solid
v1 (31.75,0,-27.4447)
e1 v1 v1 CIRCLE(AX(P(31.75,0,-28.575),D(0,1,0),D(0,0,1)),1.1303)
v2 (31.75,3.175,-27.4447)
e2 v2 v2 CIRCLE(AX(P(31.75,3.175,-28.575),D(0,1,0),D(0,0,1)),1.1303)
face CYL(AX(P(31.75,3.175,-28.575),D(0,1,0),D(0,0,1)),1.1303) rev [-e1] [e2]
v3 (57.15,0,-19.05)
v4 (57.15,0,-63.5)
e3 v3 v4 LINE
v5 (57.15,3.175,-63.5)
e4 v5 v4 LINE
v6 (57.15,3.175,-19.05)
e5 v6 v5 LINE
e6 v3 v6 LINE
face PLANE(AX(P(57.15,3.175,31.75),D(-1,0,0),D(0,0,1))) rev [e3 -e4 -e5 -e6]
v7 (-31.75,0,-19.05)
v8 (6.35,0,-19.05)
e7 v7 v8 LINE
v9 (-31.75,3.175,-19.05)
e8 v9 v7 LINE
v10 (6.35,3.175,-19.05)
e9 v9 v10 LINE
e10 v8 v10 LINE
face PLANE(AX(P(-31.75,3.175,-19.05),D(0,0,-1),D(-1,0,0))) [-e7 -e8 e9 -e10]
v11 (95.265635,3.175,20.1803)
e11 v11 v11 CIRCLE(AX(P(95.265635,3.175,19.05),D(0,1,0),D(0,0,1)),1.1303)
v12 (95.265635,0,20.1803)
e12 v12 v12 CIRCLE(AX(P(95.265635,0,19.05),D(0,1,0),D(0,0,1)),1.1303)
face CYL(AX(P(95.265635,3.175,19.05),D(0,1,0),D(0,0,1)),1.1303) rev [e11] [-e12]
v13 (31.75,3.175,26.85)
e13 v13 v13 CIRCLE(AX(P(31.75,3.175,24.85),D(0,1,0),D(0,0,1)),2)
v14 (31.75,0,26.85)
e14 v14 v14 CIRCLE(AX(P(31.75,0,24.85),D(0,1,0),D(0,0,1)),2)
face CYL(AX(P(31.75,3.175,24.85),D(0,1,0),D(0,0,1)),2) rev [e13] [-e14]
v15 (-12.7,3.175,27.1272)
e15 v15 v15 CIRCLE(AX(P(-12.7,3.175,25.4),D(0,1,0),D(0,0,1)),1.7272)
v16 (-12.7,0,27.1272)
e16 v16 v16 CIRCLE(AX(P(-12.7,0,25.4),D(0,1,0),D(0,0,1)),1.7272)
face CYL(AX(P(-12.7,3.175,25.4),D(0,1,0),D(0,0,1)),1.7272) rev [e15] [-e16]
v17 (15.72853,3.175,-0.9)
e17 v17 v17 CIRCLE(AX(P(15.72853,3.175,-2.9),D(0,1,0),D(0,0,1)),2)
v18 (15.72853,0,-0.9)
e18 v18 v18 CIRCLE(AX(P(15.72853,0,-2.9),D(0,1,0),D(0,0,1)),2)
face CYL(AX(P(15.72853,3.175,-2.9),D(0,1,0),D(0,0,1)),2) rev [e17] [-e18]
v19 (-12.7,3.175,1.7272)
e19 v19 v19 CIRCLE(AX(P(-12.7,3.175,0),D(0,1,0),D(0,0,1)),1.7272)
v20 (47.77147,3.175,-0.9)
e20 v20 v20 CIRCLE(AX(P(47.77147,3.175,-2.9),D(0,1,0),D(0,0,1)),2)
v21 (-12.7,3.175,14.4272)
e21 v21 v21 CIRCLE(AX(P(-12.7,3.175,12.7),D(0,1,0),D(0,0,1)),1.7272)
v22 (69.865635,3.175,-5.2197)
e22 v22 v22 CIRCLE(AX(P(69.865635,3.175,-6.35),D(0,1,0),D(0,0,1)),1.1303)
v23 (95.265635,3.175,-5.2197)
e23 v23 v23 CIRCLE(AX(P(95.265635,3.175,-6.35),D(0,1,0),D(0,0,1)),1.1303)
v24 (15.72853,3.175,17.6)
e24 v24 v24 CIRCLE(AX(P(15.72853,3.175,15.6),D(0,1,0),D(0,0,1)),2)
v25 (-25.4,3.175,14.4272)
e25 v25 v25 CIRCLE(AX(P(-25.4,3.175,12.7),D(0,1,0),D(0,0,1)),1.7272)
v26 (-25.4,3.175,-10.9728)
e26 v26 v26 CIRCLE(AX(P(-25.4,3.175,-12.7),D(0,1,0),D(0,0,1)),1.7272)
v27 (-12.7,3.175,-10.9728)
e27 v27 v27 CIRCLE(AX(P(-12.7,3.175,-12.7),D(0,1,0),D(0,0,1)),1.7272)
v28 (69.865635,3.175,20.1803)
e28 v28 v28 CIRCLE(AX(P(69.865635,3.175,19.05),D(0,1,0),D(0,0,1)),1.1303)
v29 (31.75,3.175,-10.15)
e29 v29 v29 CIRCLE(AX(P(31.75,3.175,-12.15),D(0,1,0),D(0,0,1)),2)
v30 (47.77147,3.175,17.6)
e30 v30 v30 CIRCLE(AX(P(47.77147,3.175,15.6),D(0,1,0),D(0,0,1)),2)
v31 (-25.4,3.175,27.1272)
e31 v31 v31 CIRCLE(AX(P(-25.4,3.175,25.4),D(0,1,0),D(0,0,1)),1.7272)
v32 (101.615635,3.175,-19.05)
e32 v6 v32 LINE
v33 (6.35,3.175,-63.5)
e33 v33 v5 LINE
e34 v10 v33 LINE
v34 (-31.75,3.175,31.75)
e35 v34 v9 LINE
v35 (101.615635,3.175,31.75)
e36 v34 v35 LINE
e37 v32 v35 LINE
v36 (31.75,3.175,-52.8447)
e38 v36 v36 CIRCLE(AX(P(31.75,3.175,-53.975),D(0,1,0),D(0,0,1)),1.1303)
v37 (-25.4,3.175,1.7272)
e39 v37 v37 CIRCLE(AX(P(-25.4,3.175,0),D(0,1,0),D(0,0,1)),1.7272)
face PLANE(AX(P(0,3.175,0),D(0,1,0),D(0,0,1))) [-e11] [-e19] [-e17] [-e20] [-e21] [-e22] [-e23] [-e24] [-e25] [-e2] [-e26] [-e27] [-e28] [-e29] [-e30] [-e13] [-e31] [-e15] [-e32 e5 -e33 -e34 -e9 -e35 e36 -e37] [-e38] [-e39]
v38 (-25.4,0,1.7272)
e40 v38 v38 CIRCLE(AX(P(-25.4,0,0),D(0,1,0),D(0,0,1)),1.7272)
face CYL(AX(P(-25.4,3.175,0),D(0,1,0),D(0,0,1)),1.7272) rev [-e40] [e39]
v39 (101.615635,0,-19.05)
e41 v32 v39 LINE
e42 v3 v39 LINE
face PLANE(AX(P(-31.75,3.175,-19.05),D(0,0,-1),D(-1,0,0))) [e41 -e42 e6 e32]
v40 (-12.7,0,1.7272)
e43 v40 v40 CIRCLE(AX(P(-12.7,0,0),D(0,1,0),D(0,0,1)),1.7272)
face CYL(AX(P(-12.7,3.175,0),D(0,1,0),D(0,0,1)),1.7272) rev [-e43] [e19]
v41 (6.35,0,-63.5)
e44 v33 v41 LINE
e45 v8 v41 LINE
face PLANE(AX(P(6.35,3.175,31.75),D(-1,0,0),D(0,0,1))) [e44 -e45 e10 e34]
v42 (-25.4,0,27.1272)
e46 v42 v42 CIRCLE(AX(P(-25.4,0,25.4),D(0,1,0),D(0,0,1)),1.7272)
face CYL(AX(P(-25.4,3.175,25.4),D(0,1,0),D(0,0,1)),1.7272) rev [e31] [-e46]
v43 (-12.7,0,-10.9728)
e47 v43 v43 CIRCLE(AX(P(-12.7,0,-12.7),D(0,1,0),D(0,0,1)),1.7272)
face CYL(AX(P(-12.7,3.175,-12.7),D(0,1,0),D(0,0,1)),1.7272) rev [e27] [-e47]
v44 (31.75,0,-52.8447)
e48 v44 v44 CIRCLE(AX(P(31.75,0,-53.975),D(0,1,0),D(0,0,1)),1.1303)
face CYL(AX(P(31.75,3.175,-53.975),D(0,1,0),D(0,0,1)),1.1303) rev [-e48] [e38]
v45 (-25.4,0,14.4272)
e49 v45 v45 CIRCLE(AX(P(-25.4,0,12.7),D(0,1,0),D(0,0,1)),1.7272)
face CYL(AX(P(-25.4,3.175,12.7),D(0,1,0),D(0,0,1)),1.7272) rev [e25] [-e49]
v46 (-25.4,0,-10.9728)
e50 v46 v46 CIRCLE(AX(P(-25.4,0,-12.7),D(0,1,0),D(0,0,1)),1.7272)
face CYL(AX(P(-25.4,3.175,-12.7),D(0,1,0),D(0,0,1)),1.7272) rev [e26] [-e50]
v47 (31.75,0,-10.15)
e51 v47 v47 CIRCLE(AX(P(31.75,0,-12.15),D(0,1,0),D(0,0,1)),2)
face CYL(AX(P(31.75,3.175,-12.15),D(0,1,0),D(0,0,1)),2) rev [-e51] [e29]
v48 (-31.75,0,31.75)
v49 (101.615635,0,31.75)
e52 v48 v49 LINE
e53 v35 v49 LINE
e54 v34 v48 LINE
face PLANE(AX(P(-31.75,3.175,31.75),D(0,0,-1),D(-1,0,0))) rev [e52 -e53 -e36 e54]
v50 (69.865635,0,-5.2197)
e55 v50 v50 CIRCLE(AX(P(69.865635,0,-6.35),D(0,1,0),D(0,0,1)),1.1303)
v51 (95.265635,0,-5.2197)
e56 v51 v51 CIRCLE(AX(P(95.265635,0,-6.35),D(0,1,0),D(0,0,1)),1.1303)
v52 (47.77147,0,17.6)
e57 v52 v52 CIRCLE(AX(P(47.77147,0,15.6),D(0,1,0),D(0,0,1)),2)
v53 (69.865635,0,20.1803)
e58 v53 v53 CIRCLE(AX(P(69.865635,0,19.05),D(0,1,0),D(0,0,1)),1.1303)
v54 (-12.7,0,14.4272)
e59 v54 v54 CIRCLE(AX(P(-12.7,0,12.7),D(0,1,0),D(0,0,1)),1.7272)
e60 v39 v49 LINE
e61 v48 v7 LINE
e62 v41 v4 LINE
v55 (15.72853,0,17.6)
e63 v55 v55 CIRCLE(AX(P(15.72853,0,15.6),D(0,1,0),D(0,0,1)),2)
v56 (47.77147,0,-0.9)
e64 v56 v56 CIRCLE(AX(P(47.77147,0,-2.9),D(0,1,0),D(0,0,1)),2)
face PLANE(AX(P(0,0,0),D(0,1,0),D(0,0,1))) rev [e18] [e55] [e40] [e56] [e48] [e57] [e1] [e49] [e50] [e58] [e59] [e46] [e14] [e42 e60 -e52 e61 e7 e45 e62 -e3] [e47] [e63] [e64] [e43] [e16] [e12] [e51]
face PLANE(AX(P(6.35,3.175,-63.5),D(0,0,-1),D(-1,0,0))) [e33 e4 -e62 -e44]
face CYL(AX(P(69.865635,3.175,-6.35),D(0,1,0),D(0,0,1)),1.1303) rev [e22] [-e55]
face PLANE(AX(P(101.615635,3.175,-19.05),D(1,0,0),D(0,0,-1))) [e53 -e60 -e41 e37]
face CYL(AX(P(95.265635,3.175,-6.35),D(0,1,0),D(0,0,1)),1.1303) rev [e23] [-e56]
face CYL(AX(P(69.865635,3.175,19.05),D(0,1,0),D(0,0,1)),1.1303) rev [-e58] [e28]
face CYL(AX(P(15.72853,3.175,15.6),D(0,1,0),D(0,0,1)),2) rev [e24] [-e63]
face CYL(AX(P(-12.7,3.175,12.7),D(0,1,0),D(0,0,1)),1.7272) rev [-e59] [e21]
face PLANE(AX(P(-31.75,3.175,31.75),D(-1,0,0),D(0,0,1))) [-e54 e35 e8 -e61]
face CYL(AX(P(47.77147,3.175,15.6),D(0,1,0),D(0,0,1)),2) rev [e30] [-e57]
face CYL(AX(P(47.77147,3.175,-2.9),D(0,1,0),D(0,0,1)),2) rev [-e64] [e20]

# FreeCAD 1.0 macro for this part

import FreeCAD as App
import Part
import Sketcher
Q = App.Units.Quantity

doc = App.newDocument("Part")
body = doc.addObject("PartDesign::Body", "Body")

# Sketch on XZ plane
sketch1 = doc.addObject("Sketcher::SketchObject", "Sketch")
body.addObject(sketch1)
sketch1.AttachmentSupport = (doc.XZ_Plane, [""])
sketch1.MapMode = "FlatFace"
sketch1.addGeometry([
    Part.LineSegment(App.Vector(-31.75, -19.05, 0), App.Vector(-31.75, 31.75, 0)),  # 0
    Part.LineSegment(App.Vector(-31.75, 31.75, 0), App.Vector(101.615635, 31.75, 0)),  # 1
    Part.LineSegment(App.Vector(101.615635, 31.75, 0), App.Vector(101.615635, -19.05, 0)),  # 2
    Part.LineSegment(App.Vector(101.615635, -19.05, 0), App.Vector(57.15, -19.05, 0)),  # 3
    Part.LineSegment(App.Vector(57.15, -19.05, 0), App.Vector(57.15, -63.5, 0)),  # 4
    Part.LineSegment(App.Vector(57.15, -63.5, 0), App.Vector(6.35, -63.5, 0)),  # 5
    Part.LineSegment(App.Vector(6.35, -63.5, 0), App.Vector(6.35, -19.05, 0)),  # 6
    Part.LineSegment(App.Vector(6.35, -19.05, 0), App.Vector(-31.75, -19.05, 0)),  # 7
], False)
sketch1.addConstraint([
    Sketcher.Constraint("Coincident", 0, 2, 1, 1),
    Sketcher.Constraint("Coincident", 1, 2, 2, 1),
    Sketcher.Constraint("Coincident", 2, 2, 3, 1),
    Sketcher.Constraint("Coincident", 3, 2, 4, 1),
    Sketcher.Constraint("Coincident", 4, 2, 5, 1),
    Sketcher.Constraint("Coincident", 5, 2, 6, 1),
    Sketcher.Constraint("Coincident", 6, 2, 7, 1),
    Sketcher.Constraint("Coincident", 7, 2, 0, 1),
    Sketcher.Constraint("Vertical", 0),
    Sketcher.Constraint("Horizontal", 1),
    Sketcher.Constraint("Vertical", 2),
    Sketcher.Constraint("Horizontal", 3),
    Sketcher.Constraint("Vertical", 4),
    Sketcher.Constraint("Horizontal", 5),
    Sketcher.Constraint("Vertical", 6),
    Sketcher.Constraint("Horizontal", 7),
    Sketcher.Constraint("Horizontal", 3, 2, 6, 2),
    Sketcher.Constraint("Equal", 5, 0),
    Sketcher.Constraint("DistanceX", 5, 2, 5, 1, Q("2 in")),
    Sketcher.Constraint("DistanceX", 7, 2, 7, 1, Q("1.5 in")),
    Sketcher.Constraint("DistanceY", 4, 2, 4, 1, Q("1.75 in")),
    Sketcher.Constraint("DistanceY", 4, 2, -1, 1, Q("2.5 in")),
    Sketcher.Constraint("DistanceX", 0, 2, -1, 1, Q("1.25 in")),
    Sketcher.Constraint("DistanceX", 1, 1, 1, 2, 133.365635),
])
pad1 = doc.addObject("PartDesign::Pad", "Pad")
body.addObject(pad1)
pad1.Profile = sketch1
pad1.Length = Q("0.125 in")
pad1.Reversed = True

# Sketch on XZ plane
sketch2 = doc.addObject("Sketcher::SketchObject", "Sketch001")
body.addObject(sketch2)
sketch2.AttachmentSupport = (doc.XZ_Plane, [""])
sketch2.MapMode = "FlatFace"
sketch2.AttachmentOffset = App.Placement(App.Vector(0, 0, -0.125 * 25.4), App.Rotation())
sketch2.addGeometry([
    Part.Circle(App.Vector(-12.7, 0, 0), App.Vector(0, 0, 1), 1.7272),  # 0
    Part.Circle(App.Vector(-25.4, 0, 0), App.Vector(0, 0, 1), 1.7272),  # 1
    Part.Circle(App.Vector(-25.4, 12.7, 0), App.Vector(0, 0, 1), 1.7272),  # 2
    Part.Circle(App.Vector(-25.4, 25.4, 0), App.Vector(0, 0, 1), 1.7272),  # 3
    Part.Circle(App.Vector(-12.7, 25.4, 0), App.Vector(0, 0, 1), 1.7272),  # 4
    Part.Circle(App.Vector(-12.7, -12.7, 0), App.Vector(0, 0, 1), 1.7272),  # 5
    Part.Circle(App.Vector(-25.4, -12.7, 0), App.Vector(0, 0, 1), 1.7272),  # 6
    Part.Circle(App.Vector(-12.7, 12.7, 0), App.Vector(0, 0, 1), 1.7272),  # 7
], False)
sketch2.addConstraint([
    Sketcher.Constraint("Equal", 0, 1),
    Sketcher.Constraint("Equal", 1, 2),
    Sketcher.Constraint("Equal", 2, 3),
    Sketcher.Constraint("Equal", 3, 4),
    Sketcher.Constraint("Equal", 4, 5),
    Sketcher.Constraint("Equal", 5, 6),
    Sketcher.Constraint("Equal", 6, 7),
    Sketcher.Constraint("Symmetric", 2, 3, 6, 3, -1),
    Sketcher.Constraint("Symmetric", 5, 3, 7, 3, -1),
    Sketcher.Constraint("PointOnObject", 0, 3, -1),
    Sketcher.Constraint("PointOnObject", 1, 3, -1),
    Sketcher.Constraint("Horizontal", 3, 3, 4, 3),
    Sketcher.Constraint("Horizontal", 5, 3, 6, 3),
    Sketcher.Constraint("Vertical", 1, 3, 2, 3),
    Sketcher.Constraint("Vertical", 2, 3, 3, 3),
    Sketcher.Constraint("Vertical", 0, 3, 4, 3),
    Sketcher.Constraint("Vertical", 4, 3, 5, 3),
    Sketcher.Constraint("Diameter", 0, Q("0.136 in")),
    Sketcher.Constraint("DistanceX", 1, 3, -1, 1, Q("1 in")),
    Sketcher.Constraint("DistanceY", -1, 1, 3, 3, Q("1 in")),
    Sketcher.Constraint("DistanceY", 5, 3, 2, 3, Q("1 in")),
    Sketcher.Constraint("DistanceX", 0, 3, -1, 1, Q("0.5 in")),
])
doc.recompute()
hole = doc.addObject("PartDesign::Hole", "Hole")
body.addObject(hole)
hole.Profile = sketch2
hole.ThreadType = "None"
hole.Diameter = Q("0.136 in")
hole.DepthType = "ThroughAll"
hole.Reversed = True

# Sketch on XZ plane
sketch3 = doc.addObject("Sketcher::SketchObject", "Sketch002")
body.addObject(sketch3)
sketch3.AttachmentSupport = (doc.XZ_Plane, [""])
sketch3.MapMode = "FlatFace"
sketch3.AttachmentOffset = App.Placement(App.Vector(0, 0, -0.125 * 25.4), App.Rotation())
sketch3.addGeometry([
    Part.Circle(App.Vector(31.75, -12.15, 0), App.Vector(0, 0, 1), 2),  # 0
    Part.Circle(App.Vector(47.77147, -2.9, 0), App.Vector(0, 0, 1), 2),  # 1
    Part.Circle(App.Vector(47.77147, 15.6, 0), App.Vector(0, 0, 1), 2),  # 2
    Part.Circle(App.Vector(31.75, 24.85, 0), App.Vector(0, 0, 1), 2),  # 3
    Part.Circle(App.Vector(15.72853, 15.6, 0), App.Vector(0, 0, 1), 2),  # 4
    Part.Circle(App.Vector(15.72853, -2.9, 0), App.Vector(0, 0, 1), 2),  # 5
], False)
sketch3.addConstraint([
    Sketcher.Constraint("Equal", 0, 1),
    Sketcher.Constraint("Equal", 1, 2),
    Sketcher.Constraint("Equal", 2, 3),
    Sketcher.Constraint("Equal", 3, 4),
    Sketcher.Constraint("Equal", 4, 5),
    Sketcher.Constraint("Horizontal", 2, 3, 4, 3),
    Sketcher.Constraint("Horizontal", 1, 3, 5, 3),
    Sketcher.Constraint("Vertical", 1, 3, 2, 3),
    Sketcher.Constraint("Vertical", 0, 3, 3, 3),
    Sketcher.Constraint("Vertical", 4, 3, 5, 3),
    Sketcher.Constraint("Diameter", 0, 4.0),
    Sketcher.Constraint("DistanceX", -1, 1, 0, 3, Q("1.25 in")),
    Sketcher.Constraint("DistanceY", 0, 3, -1, 1, 12.15),
    Sketcher.Constraint("DistanceY", 1, 3, -1, 1, 2.9),
    Sketcher.Constraint("DistanceY", -1, 1, 2, 3, 15.6),
    Sketcher.Constraint("DistanceY", -1, 1, 3, 3, 24.85),
    Sketcher.Constraint("DistanceX", -1, 1, 1, 3, 47.77147),
    Sketcher.Constraint("DistanceX", -1, 1, 4, 3, 15.72853),
])
doc.recompute()
hole2 = doc.addObject("PartDesign::Hole", "Hole001")
body.addObject(hole2)
hole2.Profile = sketch3
hole2.ThreadType = "None"
hole2.Diameter = 4
hole2.DepthType = "ThroughAll"
hole2.Reversed = True

# Sketch on XZ plane
sketch4 = doc.addObject("Sketcher::SketchObject", "Sketch003")
body.addObject(sketch4)
sketch4.AttachmentSupport = (doc.XZ_Plane, [""])
sketch4.MapMode = "FlatFace"
sketch4.AttachmentOffset = App.Placement(App.Vector(0, 0, -0.125 * 25.4), App.Rotation())
sketch4.addGeometry([
    Part.Circle(App.Vector(69.865635, -6.35, 0), App.Vector(0, 0, 1), 1.1303),
    Part.Circle(App.Vector(95.265635, -6.35, 0), App.Vector(0, 0, 1), 1.1303),
    Part.Circle(App.Vector(95.265635, 19.05, 0), App.Vector(0, 0, 1), 1.1303),
    Part.Circle(App.Vector(69.865635, 19.05, 0), App.Vector(0, 0, 1), 1.1303),
], False)
sketch4.addConstraint([
    Sketcher.Constraint("Equal", 0, 1),
    Sketcher.Constraint("Equal", 1, 2),
    Sketcher.Constraint("Equal", 2, 3),
    Sketcher.Constraint("Horizontal", 0, 3, 1, 3),
    Sketcher.Constraint("Horizontal", 2, 3, 3, 3),
    Sketcher.Constraint("Vertical", 1, 3, 2, 3),
    Sketcher.Constraint("Vertical", 0, 3, 3, 3),
    Sketcher.Constraint("Diameter", 0, Q("0.089 in")),
    Sketcher.Constraint("DistanceX", 0, 3, 1, 3, Q("1 in")),
    Sketcher.Constraint("DistanceY", 1, 3, 2, 3, Q("1 in")),
    Sketcher.Constraint("DistanceY", 0, 3, -1, 1, Q("0.25 in")),
    Sketcher.Constraint("DistanceX", -1, 1, 0, 3, 69.865635),
])
doc.recompute()
hole3 = doc.addObject("PartDesign::Hole", "Hole002")
body.addObject(hole3)
hole3.Profile = sketch4
hole3.ThreadType = "None"
hole3.Diameter = Q("0.089 in")
hole3.DepthType = "ThroughAll"
hole3.Reversed = True

# Sketch on XZ plane
sketch5 = doc.addObject("Sketcher::SketchObject", "Sketch004")
body.addObject(sketch5)
sketch5.AttachmentSupport = (doc.XZ_Plane, [""])
sketch5.MapMode = "FlatFace"
sketch5.AttachmentOffset = App.Placement(App.Vector(0, 0, -0.125 * 25.4), App.Rotation())
sketch5.addGeometry([
    Part.Circle(App.Vector(31.75, -53.975, 0), App.Vector(0, 0, 1), 1.1303),
    Part.Circle(App.Vector(31.75, -28.575, 0), App.Vector(0, 0, 1), 1.1303),
], False)
sketch5.addConstraint([
    Sketcher.Constraint("Equal", 0, 1),
    Sketcher.Constraint("Vertical", 0, 3, 1, 3),
    Sketcher.Constraint("Diameter", 0, Q("0.089 in")),
    Sketcher.Constraint("DistanceY", 0, 3, 1, 3, Q("1 in")),
    Sketcher.Constraint("DistanceX", -1, 1, 0, 3, Q("1.25 in")),
    Sketcher.Constraint("DistanceY", 0, 3, -1, 1, Q("2.125 in")),
])
doc.recompute()
hole4 = doc.addObject("PartDesign::Hole", "Hole003")
body.addObject(hole4)
hole4.Profile = sketch5
hole4.ThreadType = "None"
hole4.Diameter = Q("0.089 in")
hole4.DepthType = "ThroughAll"
hole4.Reversed = True

doc.recompute()
